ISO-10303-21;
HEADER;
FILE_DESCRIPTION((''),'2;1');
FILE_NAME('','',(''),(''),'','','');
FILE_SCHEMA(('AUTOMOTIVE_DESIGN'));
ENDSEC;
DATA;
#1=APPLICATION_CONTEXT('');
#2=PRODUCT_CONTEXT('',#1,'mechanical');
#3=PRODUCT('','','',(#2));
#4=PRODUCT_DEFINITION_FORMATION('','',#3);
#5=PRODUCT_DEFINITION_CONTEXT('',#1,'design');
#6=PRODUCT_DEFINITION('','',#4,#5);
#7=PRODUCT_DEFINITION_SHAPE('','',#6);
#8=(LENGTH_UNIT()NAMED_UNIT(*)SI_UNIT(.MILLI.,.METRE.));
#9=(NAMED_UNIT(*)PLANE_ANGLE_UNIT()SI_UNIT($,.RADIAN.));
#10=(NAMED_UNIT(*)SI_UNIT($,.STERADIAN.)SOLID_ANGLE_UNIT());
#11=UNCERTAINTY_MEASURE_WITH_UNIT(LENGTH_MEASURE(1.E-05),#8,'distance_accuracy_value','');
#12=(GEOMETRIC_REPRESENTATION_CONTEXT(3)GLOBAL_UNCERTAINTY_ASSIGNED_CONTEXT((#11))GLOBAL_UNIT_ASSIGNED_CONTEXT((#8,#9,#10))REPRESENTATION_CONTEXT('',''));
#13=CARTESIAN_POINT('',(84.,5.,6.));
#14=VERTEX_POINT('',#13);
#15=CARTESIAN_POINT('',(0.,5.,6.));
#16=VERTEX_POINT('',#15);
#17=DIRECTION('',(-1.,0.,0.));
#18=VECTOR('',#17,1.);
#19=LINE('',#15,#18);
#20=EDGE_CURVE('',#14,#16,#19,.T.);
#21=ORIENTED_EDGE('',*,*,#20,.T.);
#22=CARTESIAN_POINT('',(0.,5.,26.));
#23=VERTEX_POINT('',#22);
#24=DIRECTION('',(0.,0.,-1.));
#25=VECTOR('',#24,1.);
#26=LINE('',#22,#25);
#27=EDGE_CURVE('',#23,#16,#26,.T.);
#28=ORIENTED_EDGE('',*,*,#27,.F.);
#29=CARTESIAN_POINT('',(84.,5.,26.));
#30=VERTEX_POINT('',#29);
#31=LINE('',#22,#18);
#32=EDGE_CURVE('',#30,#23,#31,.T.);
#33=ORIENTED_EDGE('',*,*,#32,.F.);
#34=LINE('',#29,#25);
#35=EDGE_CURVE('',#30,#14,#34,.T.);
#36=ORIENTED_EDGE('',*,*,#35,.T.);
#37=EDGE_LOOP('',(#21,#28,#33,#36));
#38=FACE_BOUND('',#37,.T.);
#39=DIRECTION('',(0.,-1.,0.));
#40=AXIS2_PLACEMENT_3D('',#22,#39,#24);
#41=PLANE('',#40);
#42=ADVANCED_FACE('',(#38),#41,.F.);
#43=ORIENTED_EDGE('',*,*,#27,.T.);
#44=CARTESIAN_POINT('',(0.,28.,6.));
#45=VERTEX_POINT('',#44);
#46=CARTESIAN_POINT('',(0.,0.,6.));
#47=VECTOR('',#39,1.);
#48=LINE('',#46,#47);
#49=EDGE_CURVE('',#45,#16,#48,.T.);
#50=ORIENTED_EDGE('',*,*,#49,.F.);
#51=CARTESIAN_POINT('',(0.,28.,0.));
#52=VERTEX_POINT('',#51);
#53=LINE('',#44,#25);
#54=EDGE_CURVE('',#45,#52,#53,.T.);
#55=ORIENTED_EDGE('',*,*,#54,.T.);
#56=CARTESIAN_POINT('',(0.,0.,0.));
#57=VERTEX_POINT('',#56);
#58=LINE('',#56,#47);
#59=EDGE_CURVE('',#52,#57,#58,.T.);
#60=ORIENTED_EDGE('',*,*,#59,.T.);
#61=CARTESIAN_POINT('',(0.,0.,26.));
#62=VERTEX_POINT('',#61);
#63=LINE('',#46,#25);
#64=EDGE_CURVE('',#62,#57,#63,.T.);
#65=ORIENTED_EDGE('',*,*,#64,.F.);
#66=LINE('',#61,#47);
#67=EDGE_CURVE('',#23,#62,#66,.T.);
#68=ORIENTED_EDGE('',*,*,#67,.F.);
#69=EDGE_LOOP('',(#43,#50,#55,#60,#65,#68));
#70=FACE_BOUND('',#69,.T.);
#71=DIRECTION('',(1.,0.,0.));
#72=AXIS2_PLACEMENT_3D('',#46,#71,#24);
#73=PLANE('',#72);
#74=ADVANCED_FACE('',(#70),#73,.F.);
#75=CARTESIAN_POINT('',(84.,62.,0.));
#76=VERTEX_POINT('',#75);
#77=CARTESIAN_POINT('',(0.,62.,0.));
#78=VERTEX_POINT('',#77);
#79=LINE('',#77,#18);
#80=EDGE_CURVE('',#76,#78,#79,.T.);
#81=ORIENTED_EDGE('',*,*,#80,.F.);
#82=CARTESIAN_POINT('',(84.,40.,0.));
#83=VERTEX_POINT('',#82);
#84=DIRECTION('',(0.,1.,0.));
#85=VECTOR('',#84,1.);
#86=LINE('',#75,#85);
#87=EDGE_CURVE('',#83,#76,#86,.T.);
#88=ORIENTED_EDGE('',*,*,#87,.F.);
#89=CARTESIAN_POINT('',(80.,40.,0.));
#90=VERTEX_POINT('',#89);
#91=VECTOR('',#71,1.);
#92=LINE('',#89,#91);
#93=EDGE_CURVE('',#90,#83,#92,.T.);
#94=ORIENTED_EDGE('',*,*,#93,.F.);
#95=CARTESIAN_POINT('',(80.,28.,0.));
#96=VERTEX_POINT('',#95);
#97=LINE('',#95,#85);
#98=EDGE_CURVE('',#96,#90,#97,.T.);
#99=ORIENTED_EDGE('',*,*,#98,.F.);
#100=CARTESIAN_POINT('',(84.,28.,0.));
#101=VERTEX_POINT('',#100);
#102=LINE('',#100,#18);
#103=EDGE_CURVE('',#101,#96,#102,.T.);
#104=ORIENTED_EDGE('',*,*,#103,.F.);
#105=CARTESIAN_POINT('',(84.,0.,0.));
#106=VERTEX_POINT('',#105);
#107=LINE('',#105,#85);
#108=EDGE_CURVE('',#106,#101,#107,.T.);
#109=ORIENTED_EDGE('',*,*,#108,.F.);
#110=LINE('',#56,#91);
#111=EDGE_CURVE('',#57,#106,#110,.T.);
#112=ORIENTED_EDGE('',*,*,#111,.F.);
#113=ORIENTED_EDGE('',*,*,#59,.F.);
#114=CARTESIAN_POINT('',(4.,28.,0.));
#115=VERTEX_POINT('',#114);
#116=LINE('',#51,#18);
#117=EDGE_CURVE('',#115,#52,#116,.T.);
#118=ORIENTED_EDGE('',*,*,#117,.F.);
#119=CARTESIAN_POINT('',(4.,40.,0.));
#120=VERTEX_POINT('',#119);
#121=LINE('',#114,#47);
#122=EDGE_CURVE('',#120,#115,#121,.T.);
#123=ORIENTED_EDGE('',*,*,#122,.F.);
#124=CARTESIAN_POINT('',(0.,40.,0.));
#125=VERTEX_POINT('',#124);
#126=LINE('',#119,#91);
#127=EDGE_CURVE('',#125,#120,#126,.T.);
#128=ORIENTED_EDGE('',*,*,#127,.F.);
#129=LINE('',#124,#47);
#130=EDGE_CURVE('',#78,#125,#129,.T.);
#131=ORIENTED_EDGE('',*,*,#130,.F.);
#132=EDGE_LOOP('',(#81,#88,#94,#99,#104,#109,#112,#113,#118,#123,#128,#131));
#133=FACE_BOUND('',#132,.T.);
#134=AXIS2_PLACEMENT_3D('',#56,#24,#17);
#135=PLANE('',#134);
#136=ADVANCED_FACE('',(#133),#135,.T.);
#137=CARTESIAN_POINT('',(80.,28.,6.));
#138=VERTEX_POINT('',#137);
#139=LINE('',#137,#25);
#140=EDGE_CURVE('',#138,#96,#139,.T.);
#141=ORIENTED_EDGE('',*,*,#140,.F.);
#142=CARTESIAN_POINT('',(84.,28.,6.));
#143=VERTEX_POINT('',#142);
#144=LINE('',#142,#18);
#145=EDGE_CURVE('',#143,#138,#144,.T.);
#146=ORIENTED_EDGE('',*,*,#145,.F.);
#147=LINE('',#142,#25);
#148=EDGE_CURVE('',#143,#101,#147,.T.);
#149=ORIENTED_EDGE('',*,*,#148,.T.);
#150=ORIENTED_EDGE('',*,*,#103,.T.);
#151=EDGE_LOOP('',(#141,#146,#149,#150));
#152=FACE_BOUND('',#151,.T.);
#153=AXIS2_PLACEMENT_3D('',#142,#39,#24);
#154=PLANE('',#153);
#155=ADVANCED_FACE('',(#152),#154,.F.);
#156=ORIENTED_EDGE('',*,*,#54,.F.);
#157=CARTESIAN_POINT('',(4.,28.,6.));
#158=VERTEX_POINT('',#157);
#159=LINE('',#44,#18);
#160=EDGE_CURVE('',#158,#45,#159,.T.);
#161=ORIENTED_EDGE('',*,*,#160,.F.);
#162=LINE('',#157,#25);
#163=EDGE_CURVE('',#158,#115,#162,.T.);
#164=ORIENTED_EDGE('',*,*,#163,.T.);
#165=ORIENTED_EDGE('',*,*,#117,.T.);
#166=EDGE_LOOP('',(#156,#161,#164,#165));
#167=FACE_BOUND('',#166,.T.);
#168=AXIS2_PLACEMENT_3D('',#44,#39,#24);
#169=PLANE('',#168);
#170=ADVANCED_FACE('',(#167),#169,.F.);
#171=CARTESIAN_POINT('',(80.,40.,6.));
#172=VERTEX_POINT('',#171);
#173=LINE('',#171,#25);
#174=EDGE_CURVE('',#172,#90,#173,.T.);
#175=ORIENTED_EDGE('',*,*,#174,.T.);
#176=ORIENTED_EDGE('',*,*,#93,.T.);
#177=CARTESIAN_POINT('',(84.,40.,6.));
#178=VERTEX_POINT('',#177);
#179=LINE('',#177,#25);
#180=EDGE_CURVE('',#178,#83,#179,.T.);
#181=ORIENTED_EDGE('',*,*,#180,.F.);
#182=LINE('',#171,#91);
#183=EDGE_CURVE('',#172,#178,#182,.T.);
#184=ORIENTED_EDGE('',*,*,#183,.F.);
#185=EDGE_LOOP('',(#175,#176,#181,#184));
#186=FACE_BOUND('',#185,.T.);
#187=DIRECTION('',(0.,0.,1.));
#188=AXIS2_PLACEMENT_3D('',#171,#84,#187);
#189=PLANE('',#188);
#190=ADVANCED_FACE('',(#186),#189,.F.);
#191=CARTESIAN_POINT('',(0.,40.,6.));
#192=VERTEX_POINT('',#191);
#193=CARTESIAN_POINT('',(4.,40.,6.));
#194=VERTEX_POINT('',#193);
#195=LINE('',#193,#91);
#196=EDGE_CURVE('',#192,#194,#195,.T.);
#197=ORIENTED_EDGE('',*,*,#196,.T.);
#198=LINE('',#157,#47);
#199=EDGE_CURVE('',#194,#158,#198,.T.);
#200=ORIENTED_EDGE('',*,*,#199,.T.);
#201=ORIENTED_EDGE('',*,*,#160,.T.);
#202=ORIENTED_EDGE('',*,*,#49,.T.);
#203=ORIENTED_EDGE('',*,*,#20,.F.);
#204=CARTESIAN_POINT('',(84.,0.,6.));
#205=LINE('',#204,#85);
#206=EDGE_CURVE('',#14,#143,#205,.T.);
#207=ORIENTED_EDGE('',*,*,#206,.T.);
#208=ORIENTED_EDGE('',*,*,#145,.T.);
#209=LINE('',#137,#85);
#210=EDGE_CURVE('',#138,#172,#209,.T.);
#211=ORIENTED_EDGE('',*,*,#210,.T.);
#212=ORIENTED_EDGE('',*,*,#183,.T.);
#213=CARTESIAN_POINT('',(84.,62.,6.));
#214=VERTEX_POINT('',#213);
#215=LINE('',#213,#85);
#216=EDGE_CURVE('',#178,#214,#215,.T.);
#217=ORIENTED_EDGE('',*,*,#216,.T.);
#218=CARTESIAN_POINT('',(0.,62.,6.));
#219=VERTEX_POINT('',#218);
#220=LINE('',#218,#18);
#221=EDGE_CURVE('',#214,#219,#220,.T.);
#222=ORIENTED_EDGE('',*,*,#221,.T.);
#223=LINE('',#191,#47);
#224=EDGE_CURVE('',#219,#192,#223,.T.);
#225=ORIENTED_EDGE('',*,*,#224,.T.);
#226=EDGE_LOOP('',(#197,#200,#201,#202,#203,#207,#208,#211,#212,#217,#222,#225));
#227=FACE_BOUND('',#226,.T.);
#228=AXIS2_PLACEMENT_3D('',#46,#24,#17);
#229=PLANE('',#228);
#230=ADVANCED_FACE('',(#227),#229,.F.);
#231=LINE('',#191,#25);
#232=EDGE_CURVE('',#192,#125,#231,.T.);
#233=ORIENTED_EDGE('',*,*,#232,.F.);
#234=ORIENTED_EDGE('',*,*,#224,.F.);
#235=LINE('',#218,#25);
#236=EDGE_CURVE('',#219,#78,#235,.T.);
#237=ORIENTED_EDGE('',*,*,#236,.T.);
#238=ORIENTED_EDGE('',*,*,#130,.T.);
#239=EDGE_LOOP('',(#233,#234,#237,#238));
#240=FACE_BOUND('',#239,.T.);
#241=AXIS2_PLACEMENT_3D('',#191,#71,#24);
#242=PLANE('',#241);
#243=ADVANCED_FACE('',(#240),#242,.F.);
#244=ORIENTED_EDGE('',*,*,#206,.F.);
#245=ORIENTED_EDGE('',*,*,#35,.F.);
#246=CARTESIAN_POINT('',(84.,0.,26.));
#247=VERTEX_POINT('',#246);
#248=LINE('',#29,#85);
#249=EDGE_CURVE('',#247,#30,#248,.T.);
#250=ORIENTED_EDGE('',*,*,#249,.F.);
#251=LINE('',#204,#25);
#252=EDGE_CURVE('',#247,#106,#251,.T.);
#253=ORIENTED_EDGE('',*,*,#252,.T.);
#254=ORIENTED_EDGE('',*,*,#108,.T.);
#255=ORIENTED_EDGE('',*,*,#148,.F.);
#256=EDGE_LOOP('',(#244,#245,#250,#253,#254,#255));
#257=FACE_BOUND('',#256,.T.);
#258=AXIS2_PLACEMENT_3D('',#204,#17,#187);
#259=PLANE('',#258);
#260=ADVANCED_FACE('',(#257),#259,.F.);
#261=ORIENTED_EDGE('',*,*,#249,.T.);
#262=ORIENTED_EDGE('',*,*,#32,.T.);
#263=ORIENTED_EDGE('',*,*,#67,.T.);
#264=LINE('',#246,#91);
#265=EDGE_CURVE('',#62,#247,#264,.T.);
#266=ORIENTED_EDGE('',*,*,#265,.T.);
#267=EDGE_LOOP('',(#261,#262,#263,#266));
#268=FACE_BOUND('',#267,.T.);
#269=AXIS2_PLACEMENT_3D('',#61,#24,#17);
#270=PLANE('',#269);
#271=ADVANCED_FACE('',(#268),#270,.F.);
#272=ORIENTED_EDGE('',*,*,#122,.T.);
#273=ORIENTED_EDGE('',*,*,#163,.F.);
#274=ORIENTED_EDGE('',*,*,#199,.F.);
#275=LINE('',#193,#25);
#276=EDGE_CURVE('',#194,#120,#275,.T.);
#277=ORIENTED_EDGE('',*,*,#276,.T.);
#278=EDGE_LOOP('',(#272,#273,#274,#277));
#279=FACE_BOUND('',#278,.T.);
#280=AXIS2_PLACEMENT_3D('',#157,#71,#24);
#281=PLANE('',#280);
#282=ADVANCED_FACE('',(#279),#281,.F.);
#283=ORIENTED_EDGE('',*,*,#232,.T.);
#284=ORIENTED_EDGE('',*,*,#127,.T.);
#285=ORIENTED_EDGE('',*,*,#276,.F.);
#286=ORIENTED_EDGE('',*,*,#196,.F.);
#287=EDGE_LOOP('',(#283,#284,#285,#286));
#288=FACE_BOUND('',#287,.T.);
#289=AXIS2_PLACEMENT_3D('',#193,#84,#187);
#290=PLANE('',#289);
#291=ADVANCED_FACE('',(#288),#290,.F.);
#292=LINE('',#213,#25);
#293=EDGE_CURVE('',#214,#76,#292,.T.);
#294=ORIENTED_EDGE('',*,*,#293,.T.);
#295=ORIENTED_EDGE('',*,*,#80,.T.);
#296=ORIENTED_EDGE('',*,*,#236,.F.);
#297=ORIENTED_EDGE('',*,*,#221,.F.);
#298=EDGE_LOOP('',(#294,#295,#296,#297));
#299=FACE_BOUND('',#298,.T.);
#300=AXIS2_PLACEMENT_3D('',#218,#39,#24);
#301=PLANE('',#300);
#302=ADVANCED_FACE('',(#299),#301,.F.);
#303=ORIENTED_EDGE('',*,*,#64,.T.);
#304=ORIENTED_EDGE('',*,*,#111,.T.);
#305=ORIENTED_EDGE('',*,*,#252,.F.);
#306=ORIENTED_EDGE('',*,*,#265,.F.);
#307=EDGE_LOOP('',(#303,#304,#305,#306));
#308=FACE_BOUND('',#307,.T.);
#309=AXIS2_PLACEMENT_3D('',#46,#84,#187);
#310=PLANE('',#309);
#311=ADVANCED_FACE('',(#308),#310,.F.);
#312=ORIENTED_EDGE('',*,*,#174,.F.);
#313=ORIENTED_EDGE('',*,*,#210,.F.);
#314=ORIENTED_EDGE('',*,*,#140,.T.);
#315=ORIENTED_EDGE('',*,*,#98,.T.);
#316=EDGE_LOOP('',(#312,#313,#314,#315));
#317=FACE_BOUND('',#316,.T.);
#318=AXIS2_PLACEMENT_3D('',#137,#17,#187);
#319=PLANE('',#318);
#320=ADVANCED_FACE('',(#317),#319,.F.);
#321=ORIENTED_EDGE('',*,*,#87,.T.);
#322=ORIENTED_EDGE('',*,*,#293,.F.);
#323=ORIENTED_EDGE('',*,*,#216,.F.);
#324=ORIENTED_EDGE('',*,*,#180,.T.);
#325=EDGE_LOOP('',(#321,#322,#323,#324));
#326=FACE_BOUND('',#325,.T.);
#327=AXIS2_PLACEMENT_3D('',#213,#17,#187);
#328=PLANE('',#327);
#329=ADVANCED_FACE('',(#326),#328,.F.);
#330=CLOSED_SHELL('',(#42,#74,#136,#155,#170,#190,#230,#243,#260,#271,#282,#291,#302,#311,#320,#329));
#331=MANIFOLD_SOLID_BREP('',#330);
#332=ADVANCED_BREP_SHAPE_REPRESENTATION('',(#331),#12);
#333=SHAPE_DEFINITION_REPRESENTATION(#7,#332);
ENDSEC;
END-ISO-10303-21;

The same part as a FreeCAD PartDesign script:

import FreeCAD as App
import Part
import Sketcher
from FreeCAD import Vector


def add_polygon(sketch, points):
    """Adds a closed chain of lines whose ends are joined by coincident constraints."""
    first, n = sketch.GeometryCount, len(points)
    for a, b in zip(points, points[1:] + points[:1]):
        sketch.addGeometry(Part.LineSegment(App.Vector(*a, 0), App.Vector(*b, 0)), False)
    for i in range(n):
        sketch.addConstraint(Sketcher.Constraint("Coincident", first + i, 2, first + (i + 1) % n, 1))

doc = App.newDocument("Part")
body = doc.addObject("PartDesign::Body", "Body")

# Sketch on XY plane
sketch1 = doc.addObject("Sketcher::SketchObject", "Sketch")
body.addObject(sketch1)
sketch1.AttachmentSupport = (doc.XY_Plane, [""])
sketch1.MapMode = "FlatFace"
add_polygon(sketch1, [(84, 40), (84, 62), (0, 62), (0, 40), (4, 40), (4, 28), (0, 28), (0, 0), (84, 0), (84, 28), (80, 28), (80, 40)])  # lines 0-11
sketch1.addConstraint([
    Sketcher.Constraint("Vertical", 0),
    Sketcher.Constraint("Horizontal", 1),
    Sketcher.Constraint("Vertical", 2),
    Sketcher.Constraint("Horizontal", 3),
    Sketcher.Constraint("Vertical", 4),
    Sketcher.Constraint("Horizontal", 5),
    Sketcher.Constraint("Vertical", 6),
    Sketcher.Constraint("Horizontal", 7),
    Sketcher.Constraint("Vertical", 8),
    Sketcher.Constraint("Horizontal", 9),
    Sketcher.Constraint("Vertical", 10),
    Sketcher.Constraint("Horizontal", 11),
    Sketcher.Constraint("Coincident", 6, 2, -1, 1),
    Sketcher.Constraint("PointOnObject", 1, 2, -2),
    Sketcher.Constraint("Horizontal", 5, 2, 8, 2),
    Sketcher.Constraint("Horizontal", 3, 2, 10, 2),
    Sketcher.Constraint("Vertical", 0, 2, 7, 2),
    Sketcher.Constraint("Equal", 5, 9),
    Sketcher.Constraint("DistanceX", 1, 2, 1, 1, 84.0),
    Sketcher.Constraint("DistanceX", 3, 1, 3, 2, 4.0),
    Sketcher.Constraint("DistanceY", 0, 1, 0, 2, 22.0),
    Sketcher.Constraint("DistanceY", 4, 2, 4, 1, 12.0),
    Sketcher.Constraint("DistanceY", 6, 2, 6, 1, 28.0),
])
pad1 = doc.addObject("PartDesign::Pad", "Pad")
body.addObject(pad1)
pad1.Profile = sketch1
pad1.Length = 6

# Sketch on XY plane
sketch2 = doc.addObject("Sketcher::SketchObject", "Sketch001")
body.addObject(sketch2)
sketch2.AttachmentSupport = (doc.XY_Plane, [""])
sketch2.MapMode = "FlatFace"
sketch2.AttachmentOffset = App.Placement(Vector(0, 0, 6), App.Rotation())
add_polygon(sketch2, [(0, 5), (0, 0), (84, 0), (84, 5)])  # lines 0-3
sketch2.addConstraint([
    Sketcher.Constraint("Vertical", 0),
    Sketcher.Constraint("Horizontal", 1),
    Sketcher.Constraint("Vertical", 2),
    Sketcher.Constraint("Horizontal", 3),
    Sketcher.Constraint("Coincident", 0, 2, -1, 1),
    Sketcher.Constraint("DistanceX", 1, 1, 1, 2, 84.0),
    Sketcher.Constraint("DistanceY", 0, 2, 0, 1, 5.0),
])
pad2 = doc.addObject("PartDesign::Pad", "Pad001")
body.addObject(pad2)
pad2.Profile = sketch2
pad2.Length = 20

doc.recompute()
